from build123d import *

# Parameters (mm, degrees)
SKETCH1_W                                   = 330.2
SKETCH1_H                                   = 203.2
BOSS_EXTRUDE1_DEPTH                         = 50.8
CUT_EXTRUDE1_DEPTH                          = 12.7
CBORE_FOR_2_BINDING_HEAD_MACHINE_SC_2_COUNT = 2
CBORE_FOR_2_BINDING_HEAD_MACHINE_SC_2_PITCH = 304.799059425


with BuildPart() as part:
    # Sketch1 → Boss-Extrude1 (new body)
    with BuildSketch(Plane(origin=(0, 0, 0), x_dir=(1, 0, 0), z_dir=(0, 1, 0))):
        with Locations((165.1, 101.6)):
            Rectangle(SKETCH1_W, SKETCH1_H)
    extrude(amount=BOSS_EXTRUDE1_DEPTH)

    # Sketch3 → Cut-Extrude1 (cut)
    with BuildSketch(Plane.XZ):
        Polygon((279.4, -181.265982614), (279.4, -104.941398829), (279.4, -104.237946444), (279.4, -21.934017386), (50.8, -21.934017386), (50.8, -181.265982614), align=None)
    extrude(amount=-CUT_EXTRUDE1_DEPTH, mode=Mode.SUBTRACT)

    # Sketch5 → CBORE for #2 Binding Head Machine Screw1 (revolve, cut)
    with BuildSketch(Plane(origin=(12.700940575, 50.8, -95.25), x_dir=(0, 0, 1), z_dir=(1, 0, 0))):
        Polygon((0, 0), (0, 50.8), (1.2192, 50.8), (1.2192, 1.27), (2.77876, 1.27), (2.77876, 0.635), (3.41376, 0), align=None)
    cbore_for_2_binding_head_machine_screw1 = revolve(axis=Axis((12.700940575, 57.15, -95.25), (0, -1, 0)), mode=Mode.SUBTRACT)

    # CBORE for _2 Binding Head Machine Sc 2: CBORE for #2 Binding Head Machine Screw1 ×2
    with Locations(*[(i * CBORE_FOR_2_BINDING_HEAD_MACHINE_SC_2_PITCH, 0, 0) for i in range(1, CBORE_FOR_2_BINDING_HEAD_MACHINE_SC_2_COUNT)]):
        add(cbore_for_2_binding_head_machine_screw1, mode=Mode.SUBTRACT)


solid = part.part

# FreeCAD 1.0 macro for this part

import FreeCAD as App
import Part
import Sketcher
Q = App.Units.Quantity

doc = App.newDocument("Part")
body = doc.addObject("PartDesign::Body", "Body")

sketch1 = doc.addObject("Sketcher::SketchObject", "Sketch")
body.addObject(sketch1)
sketch1.AttachmentSupport = (doc.XZ_Plane, [""])
sketch1.MapMode = "FlatFace"
sketch1.addGeometry([
    Part.LineSegment(App.Vector(0, -203, 0), App.Vector(0, 0, 0)),
    Part.LineSegment(App.Vector(0, 0, 0), App.Vector(330, 0, 0)),
    Part.LineSegment(App.Vector(330, 0, 0), App.Vector(330, -203, 0)),
    Part.LineSegment(App.Vector(330, -203, 0), App.Vector(0, -203, 0)),
], False)
sketch1.addConstraint([
    Sketcher.Constraint("Coincident", 0, 2, 1, 1),
    Sketcher.Constraint("Coincident", 1, 2, 2, 1),
    Sketcher.Constraint("Coincident", 2, 2, 3, 1),
    Sketcher.Constraint("Coincident", 3, 2, 0, 1),
    Sketcher.Constraint("Vertical", 0),
    Sketcher.Constraint("Horizontal", 1),
    Sketcher.Constraint("Vertical", 2),
    Sketcher.Constraint("Horizontal", 3),
    Sketcher.Constraint("Coincident", 0, 2, -1, 1),
    Sketcher.Constraint("DistanceX", 1, 1, 1, 2, Q("13 in")),
    Sketcher.Constraint("DistanceY", 0, 1, 0, 2, Q("8 in")),
])
pad1 = doc.addObject("PartDesign::Pad", "Pad")
body.addObject(pad1)
pad1.Profile = sketch1
pad1.Length = Q("2 in")
pad1.Reversed = True

sketch2 = doc.addObject("Sketcher::SketchObject", "Sketch001")
body.addObject(sketch2)
sketch2.AttachmentSupport = (doc.XZ_Plane, [""])
sketch2.MapMode = "FlatFace"
sketch2.addGeometry([
    Part.LineSegment(App.Vector(279, -181, 0), App.Vector(279, -22, 0)),
    Part.LineSegment(App.Vector(279, -22, 0), App.Vector(51, -22, 0)),
    Part.LineSegment(App.Vector(51, -22, 0), App.Vector(51, -181, 0)),
    Part.LineSegment(App.Vector(51, -181, 0), App.Vector(279, -181, 0)),
], False)
sketch2.addConstraint([
    Sketcher.Constraint("Coincident", 0, 2, 1, 1),
    Sketcher.Constraint("Coincident", 1, 2, 2, 1),
    Sketcher.Constraint("Coincident", 2, 2, 3, 1),
    Sketcher.Constraint("Coincident", 3, 2, 0, 1),
    Sketcher.Constraint("Vertical", 0),
    Sketcher.Constraint("Horizontal", 1),
    Sketcher.Constraint("Vertical", 2),
    Sketcher.Constraint("Horizontal", 3),
    Sketcher.Constraint("DistanceX", 1, 2, 1, 1, Q("9 in")),
    Sketcher.Constraint("DistanceX", -1, 1, 0, 2, Q("11 in")),
    Sketcher.Constraint("DistanceY", 0, 1, 0, 2, 159.331965),
    Sketcher.Constraint("DistanceY", 0, 2, -1, 1, 21.934017),
])
pocket1 = doc.addObject("PartDesign::Pocket", "Pocket")
body.addObject(pocket1)
pocket1.Profile = sketch2
pocket1.Length = Q("0.5 in")

sketch3 = doc.addObject("Sketcher::SketchObject", "Sketch002")
body.addObject(sketch3)
sketch3.AttachmentSupport = (doc.YZ_Plane, [""])
sketch3.MapMode = "FlatFace"
sketch3.AttachmentOffset = App.Placement(App.Vector(0, 0, 12.700941), App.Rotation())
sketch3.addGeometry([
    Part.LineSegment(App.Vector(0, -95.2, 0), App.Vector(50.8, -95.2, 0)),
    Part.LineSegment(App.Vector(50.8, -95.2, 0), App.Vector(50.8, -91.8, 0)),
    Part.LineSegment(App.Vector(50.8, -91.8, 0), App.Vector(50.2, -92.5, 0)),
    Part.LineSegment(App.Vector(50.2, -92.5, 0), App.Vector(49.5, -92.5, 0)),
    Part.LineSegment(App.Vector(49.5, -92.5, 0), App.Vector(49.5, -94, 0)),
    Part.LineSegment(App.Vector(49.5, -94, 0), App.Vector(0, -94, 0)),
    Part.LineSegment(App.Vector(0, -94, 0), App.Vector(0, -95.2, 0)),
], False)
sketch3.addGeometry(Part.LineSegment(App.Vector(50.8, -95.2, 0), App.Vector(0, -95.2, 0)), True)
sketch3.addConstraint([
    Sketcher.Constraint("Coincident", 0, 2, 1, 1),
    Sketcher.Constraint("Coincident", 1, 2, 2, 1),
    Sketcher.Constraint("Coincident", 2, 2, 3, 1),
    Sketcher.Constraint("Coincident", 3, 2, 4, 1),
    Sketcher.Constraint("Coincident", 4, 2, 5, 1),
    Sketcher.Constraint("Coincident", 5, 2, 6, 1),
    Sketcher.Constraint("Coincident", 6, 2, 0, 1),
    Sketcher.Constraint("Horizontal", 0),
    Sketcher.Constraint("Vertical", 1),
    Sketcher.Constraint("Horizontal", 3),
    Sketcher.Constraint("Vertical", 4),
    Sketcher.Constraint("Horizontal", 5),
    Sketcher.Constraint("Vertical", 6),
    Sketcher.Constraint("Horizontal", 7),
    Sketcher.Constraint("Coincident", 7, 1, 0, 2),
    Sketcher.Constraint("PointOnObject", 5, 2, -2),
    Sketcher.Constraint("PointOnObject", 7, 2, -2),
    Sketcher.Constraint("DistanceX", 0, 1, 0, 2, Q("2 in")),
    Sketcher.Constraint("Angle", 2, Q("-135 deg")),
    Sketcher.Constraint("DistanceX", 5, 2, 5, 1, Q("1.95 in")),
    Sketcher.Constraint("DistanceX", 3, 2, 3, 1, Q("0.025 in")),
    Sketcher.Constraint("DistanceY", 6, 2, 6, 1, Q("0.048 in")),
    Sketcher.Constraint("DistanceY", 0, 2, -1, 1, Q("3.75 in")),
    Sketcher.Constraint("DistanceY", 1, 1, 1, 2, Q("0.1344 in")),
])
groove = doc.addObject("PartDesign::Groove", "Groove")
body.addObject(groove)
groove.Profile = sketch3
groove.ReferenceAxis = (sketch3, ["Axis0"])
groove.Angle = 360
doc.recompute()

linearpattern = doc.addObject("PartDesign::LinearPattern", "LinearPattern")
body.addObject(linearpattern)
linearpattern.Originals = [groove]
linearpattern.Direction = (doc.X_Axis, [""])
linearpattern.Mode = "offset"
linearpattern.Offset = 304.799059
linearpattern.Occurrences = 2
body.Tip = linearpattern

doc.recompute()
